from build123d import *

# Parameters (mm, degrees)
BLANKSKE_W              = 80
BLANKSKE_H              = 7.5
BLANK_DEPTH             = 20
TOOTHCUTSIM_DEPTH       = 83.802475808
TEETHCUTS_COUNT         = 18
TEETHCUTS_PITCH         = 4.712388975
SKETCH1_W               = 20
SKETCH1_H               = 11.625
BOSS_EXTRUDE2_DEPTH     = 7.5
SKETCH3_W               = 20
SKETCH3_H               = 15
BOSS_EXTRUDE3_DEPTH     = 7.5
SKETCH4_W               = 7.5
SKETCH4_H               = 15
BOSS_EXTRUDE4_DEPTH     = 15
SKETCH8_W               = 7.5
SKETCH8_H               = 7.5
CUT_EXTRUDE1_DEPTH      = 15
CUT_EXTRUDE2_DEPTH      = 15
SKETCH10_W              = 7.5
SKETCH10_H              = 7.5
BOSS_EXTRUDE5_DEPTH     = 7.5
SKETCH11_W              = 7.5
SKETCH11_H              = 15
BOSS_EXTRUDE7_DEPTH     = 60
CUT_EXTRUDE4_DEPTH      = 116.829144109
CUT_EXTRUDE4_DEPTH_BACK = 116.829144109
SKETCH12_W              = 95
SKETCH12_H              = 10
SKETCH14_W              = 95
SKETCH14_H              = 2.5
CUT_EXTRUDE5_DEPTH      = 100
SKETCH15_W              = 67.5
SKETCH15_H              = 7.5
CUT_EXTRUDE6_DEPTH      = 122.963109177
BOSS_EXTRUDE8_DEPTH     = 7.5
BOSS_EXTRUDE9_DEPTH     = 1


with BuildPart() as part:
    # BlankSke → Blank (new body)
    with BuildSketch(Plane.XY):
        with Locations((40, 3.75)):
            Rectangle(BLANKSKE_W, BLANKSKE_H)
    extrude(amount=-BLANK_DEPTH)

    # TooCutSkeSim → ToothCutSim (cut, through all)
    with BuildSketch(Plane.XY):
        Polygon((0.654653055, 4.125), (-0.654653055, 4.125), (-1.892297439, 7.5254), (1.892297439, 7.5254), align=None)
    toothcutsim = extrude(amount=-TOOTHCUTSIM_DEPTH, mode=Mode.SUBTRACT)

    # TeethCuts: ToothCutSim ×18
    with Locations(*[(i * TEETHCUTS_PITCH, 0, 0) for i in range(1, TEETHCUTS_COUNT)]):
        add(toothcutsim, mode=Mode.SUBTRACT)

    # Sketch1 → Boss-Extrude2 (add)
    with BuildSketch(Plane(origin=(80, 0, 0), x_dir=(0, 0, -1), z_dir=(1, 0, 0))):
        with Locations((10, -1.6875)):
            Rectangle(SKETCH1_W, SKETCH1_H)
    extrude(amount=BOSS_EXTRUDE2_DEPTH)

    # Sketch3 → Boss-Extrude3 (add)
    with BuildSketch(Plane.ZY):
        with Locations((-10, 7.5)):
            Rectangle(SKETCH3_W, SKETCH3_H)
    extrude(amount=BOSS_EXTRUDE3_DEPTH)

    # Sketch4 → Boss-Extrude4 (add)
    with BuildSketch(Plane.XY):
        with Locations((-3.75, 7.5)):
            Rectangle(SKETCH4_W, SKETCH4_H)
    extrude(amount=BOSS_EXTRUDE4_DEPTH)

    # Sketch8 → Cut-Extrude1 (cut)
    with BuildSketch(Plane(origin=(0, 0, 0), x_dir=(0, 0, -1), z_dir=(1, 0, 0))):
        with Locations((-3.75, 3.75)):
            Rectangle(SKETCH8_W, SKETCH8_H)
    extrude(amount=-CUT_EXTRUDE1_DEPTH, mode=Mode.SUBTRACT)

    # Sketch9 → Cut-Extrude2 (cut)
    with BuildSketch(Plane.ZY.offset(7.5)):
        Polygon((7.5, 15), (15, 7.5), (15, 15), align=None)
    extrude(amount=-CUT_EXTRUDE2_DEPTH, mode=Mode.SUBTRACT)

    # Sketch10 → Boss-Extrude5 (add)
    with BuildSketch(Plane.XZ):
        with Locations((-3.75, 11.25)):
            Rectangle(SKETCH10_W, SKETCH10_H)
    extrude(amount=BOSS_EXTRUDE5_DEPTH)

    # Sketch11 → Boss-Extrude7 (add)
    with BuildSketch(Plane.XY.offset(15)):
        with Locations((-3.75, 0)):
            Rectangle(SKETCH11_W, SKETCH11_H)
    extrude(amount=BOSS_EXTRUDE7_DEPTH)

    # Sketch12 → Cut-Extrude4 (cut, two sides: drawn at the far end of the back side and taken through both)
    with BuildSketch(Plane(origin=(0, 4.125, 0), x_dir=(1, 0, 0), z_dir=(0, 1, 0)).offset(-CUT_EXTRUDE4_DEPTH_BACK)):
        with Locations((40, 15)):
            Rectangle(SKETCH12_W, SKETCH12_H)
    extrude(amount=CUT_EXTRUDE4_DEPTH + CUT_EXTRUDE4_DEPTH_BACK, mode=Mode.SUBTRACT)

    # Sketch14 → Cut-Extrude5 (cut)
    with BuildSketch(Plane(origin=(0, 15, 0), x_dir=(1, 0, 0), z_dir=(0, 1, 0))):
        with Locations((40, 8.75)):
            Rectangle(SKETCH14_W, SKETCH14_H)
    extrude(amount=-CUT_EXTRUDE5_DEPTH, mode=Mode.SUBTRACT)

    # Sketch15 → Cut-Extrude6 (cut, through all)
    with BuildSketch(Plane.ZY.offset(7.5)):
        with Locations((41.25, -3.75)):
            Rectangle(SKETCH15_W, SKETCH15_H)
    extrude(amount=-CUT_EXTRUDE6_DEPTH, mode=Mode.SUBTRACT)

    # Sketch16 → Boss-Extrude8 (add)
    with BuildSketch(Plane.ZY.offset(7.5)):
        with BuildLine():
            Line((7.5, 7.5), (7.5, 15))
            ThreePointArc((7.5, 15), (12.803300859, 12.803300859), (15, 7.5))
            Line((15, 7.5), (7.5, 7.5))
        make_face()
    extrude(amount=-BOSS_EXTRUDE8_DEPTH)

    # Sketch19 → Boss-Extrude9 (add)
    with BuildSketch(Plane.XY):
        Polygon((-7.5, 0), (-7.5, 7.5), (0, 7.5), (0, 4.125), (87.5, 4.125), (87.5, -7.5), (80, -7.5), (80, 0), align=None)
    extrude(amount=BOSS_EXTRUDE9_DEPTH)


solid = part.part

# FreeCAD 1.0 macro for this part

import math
import FreeCAD as App
import Part
import Sketcher
from FreeCAD import Vector
Q = App.Units.Quantity

doc = App.newDocument("Part")
body = doc.addObject("PartDesign::Body", "Body")

# Sketch on XY plane
sketch1 = body.newObject("Sketcher::SketchObject", "Sketch")
sketch1.AttachmentSupport = (doc.getObject("XY_Plane"), [""])
sketch1.MapMode = "FlatFace"
sketch1.addGeometry(Part.LineSegment(Vector(0, 7.5, 0), Vector(0, 0, 0)), False)
sketch1.addGeometry(Part.LineSegment(Vector(0, 0, 0), Vector(80, 0, 0)), False)
sketch1.addGeometry(Part.LineSegment(Vector(80, 0, 0), Vector(80, 7.5, 0)), False)
sketch1.addGeometry(Part.LineSegment(Vector(80, 7.5, 0), Vector(0, 7.5, 0)), False)
sketch1.addConstraint(Sketcher.Constraint("Coincident", 0, 2, 1, 1))
sketch1.addConstraint(Sketcher.Constraint("Coincident", 1, 2, 2, 1))
sketch1.addConstraint(Sketcher.Constraint("Coincident", 2, 2, 3, 1))
sketch1.addConstraint(Sketcher.Constraint("Coincident", 3, 2, 0, 1))
sketch1.addConstraint(Sketcher.Constraint("Vertical", 0))
sketch1.addConstraint(Sketcher.Constraint("Horizontal", 1))
sketch1.addConstraint(Sketcher.Constraint("Vertical", 2))
sketch1.addConstraint(Sketcher.Constraint("Horizontal", 3))
sketch1.addConstraint(Sketcher.Constraint("Coincident", 0, 2, -1, 1))
sketch1.addConstraint(Sketcher.Constraint("DistanceX", 1, 1, 1, 2, 80.0))
sketch1.addConstraint(Sketcher.Constraint("DistanceY", 0, 2, 0, 1, 7.5))
pad1 = body.newObject("PartDesign::Pad", "Pad")
pad1.Profile = sketch1
pad1.Length = 20
pad1.Reversed = True

# Sketch on XY plane
sketch2 = body.newObject("Sketcher::SketchObject", "Sketch001")
sketch2.AttachmentSupport = (doc.getObject("XY_Plane"), [""])
sketch2.MapMode = "FlatFace"
sketch2.addGeometry(Part.LineSegment(Vector(-0.654653, 4.125, 0), Vector(0.654653, 4.125, 0)), False)
sketch2.addGeometry(Part.LineSegment(Vector(0.654653, 4.125, 0), Vector(1.892297, 7.5254, 0)), False)
sketch2.addGeometry(Part.LineSegment(Vector(1.892297, 7.5254, 0), Vector(-1.892297, 7.5254, 0)), False)
sketch2.addGeometry(Part.LineSegment(Vector(-1.892297, 7.5254, 0), Vector(-0.654653, 4.125, 0)), False)
sketch2.addConstraint(Sketcher.Constraint("Coincident", 0, 2, 1, 1))
sketch2.addConstraint(Sketcher.Constraint("Coincident", 1, 2, 2, 1))
sketch2.addConstraint(Sketcher.Constraint("Coincident", 2, 2, 3, 1))
sketch2.addConstraint(Sketcher.Constraint("Coincident", 3, 2, 0, 1))
sketch2.addConstraint(Sketcher.Constraint("Horizontal", 0))
sketch2.addConstraint(Sketcher.Constraint("Horizontal", 2))
sketch2.addConstraint(Sketcher.Constraint("Equal", 1, 3))
sketch2.addConstraint(Sketcher.Constraint("Angle", 1, Q("70 deg")))
sketch2.addConstraint(Sketcher.Constraint("DistanceY", -1, 1, 0, 2, 4.125))
sketch2.addConstraint(Sketcher.Constraint("DistanceY", -1, 1, 1, 2, 7.5254))
sketch2.addConstraint(Sketcher.Constraint("DistanceX", 0, 1, 0, 2, 1.309306))
sketch2.addConstraint(Sketcher.Constraint("DistanceX", -1, 1, 0, 2, 0.654653))
pocket1 = body.newObject("PartDesign::Pocket", "Pocket")
pocket1.Profile = sketch2
pocket1.Type = "ThroughAll"
doc.recompute()

linearpattern = body.newObject("PartDesign::LinearPattern", "LinearPattern")
linearpattern.Originals = [pocket1]
linearpattern.Direction = (doc.getObject("X_Axis"), [""])
linearpattern.Mode = "offset"
linearpattern.Offset = 4.712389
linearpattern.Occurrences = 18
body.Tip = linearpattern

# Sketch on YZ plane
sketch3 = body.newObject("Sketcher::SketchObject", "Sketch002")
sketch3.AttachmentSupport = (doc.getObject("YZ_Plane"), [""])
sketch3.MapMode = "FlatFace"
sketch3.AttachmentOffset = App.Placement(Vector(0, 0, 80), App.Rotation())
sketch3.addGeometry(Part.LineSegment(Vector(4.125, 0, 0), Vector(-7.5, 0, 0)), False)
sketch3.addGeometry(Part.LineSegment(Vector(-7.5, 0, 0), Vector(-7.5, -20, 0)), False)
sketch3.addGeometry(Part.LineSegment(Vector(-7.5, -20, 0), Vector(4.125, -20, 0)), False)
sketch3.addGeometry(Part.LineSegment(Vector(4.125, -20, 0), Vector(4.125, 0, 0)), False)
sketch3.addConstraint(Sketcher.Constraint("Coincident", 0, 2, 1, 1))
sketch3.addConstraint(Sketcher.Constraint("Coincident", 1, 2, 2, 1))
sketch3.addConstraint(Sketcher.Constraint("Coincident", 2, 2, 3, 1))
sketch3.addConstraint(Sketcher.Constraint("Coincident", 3, 2, 0, 1))
sketch3.addConstraint(Sketcher.Constraint("Horizontal", 0))
sketch3.addConstraint(Sketcher.Constraint("Vertical", 1))
sketch3.addConstraint(Sketcher.Constraint("Horizontal", 2))
sketch3.addConstraint(Sketcher.Constraint("Vertical", 3))
sketch3.addConstraint(Sketcher.Constraint("PointOnObject", 0, 2, -1))
sketch3.addConstraint(Sketcher.Constraint("DistanceY", 1, 2, 1, 1, 20.0))
sketch3.addConstraint(Sketcher.Constraint("DistanceX", 0, 2, -1, 1, 7.5))
sketch3.addConstraint(Sketcher.Constraint("DistanceX", 0, 2, 0, 1, 11.625))
pad2 = body.newObject("PartDesign::Pad", "Pad001")
pad2.Profile = sketch3
pad2.Length = 7.5

# Sketch on YZ plane
sketch4 = body.newObject("Sketcher::SketchObject", "Sketch003")
sketch4.AttachmentSupport = (doc.getObject("YZ_Plane"), [""])
sketch4.MapMode = "FlatFace"
sketch4.addGeometry(Part.LineSegment(Vector(15, -20, 0), Vector(0, -20, 0)), False)
sketch4.addGeometry(Part.LineSegment(Vector(0, -20, 0), Vector(0, 0, 0)), False)
sketch4.addGeometry(Part.LineSegment(Vector(0, 0, 0), Vector(15, 0, 0)), False)
sketch4.addGeometry(Part.LineSegment(Vector(15, 0, 0), Vector(15, -20, 0)), False)
sketch4.addConstraint(Sketcher.Constraint("Coincident", 0, 2, 1, 1))
sketch4.addConstraint(Sketcher.Constraint("Coincident", 1, 2, 2, 1))
sketch4.addConstraint(Sketcher.Constraint("Coincident", 2, 2, 3, 1))
sketch4.addConstraint(Sketcher.Constraint("Coincident", 3, 2, 0, 1))
sketch4.addConstraint(Sketcher.Constraint("Horizontal", 0))
sketch4.addConstraint(Sketcher.Constraint("Vertical", 1))
sketch4.addConstraint(Sketcher.Constraint("Horizontal", 2))
sketch4.addConstraint(Sketcher.Constraint("Vertical", 3))
sketch4.addConstraint(Sketcher.Constraint("Coincident", 1, 2, -1, 1))
sketch4.addConstraint(Sketcher.Constraint("DistanceX", 0, 2, 0, 1, 15.0))
sketch4.addConstraint(Sketcher.Constraint("DistanceY", 1, 1, 1, 2, 20.0))
pad3 = body.newObject("PartDesign::Pad", "Pad002")
pad3.Profile = sketch4
pad3.Length = 7.5
pad3.Reversed = True

# Sketch on XY plane
sketch5 = body.newObject("Sketcher::SketchObject", "Sketch004")
sketch5.AttachmentSupport = (doc.getObject("XY_Plane"), [""])
sketch5.MapMode = "FlatFace"
sketch5.addGeometry(Part.LineSegment(Vector(-7.5, 15, 0), Vector(-7.5, 0, 0)), False)
sketch5.addGeometry(Part.LineSegment(Vector(-7.5, 0, 0), Vector(0, 0, 0)), False)
sketch5.addGeometry(Part.LineSegment(Vector(0, 0, 0), Vector(0, 15, 0)), False)
sketch5.addGeometry(Part.LineSegment(Vector(0, 15, 0), Vector(-7.5, 15, 0)), False)
sketch5.addConstraint(Sketcher.Constraint("Coincident", 0, 2, 1, 1))
sketch5.addConstraint(Sketcher.Constraint("Coincident", 1, 2, 2, 1))
sketch5.addConstraint(Sketcher.Constraint("Coincident", 2, 2, 3, 1))
sketch5.addConstraint(Sketcher.Constraint("Coincident", 3, 2, 0, 1))
sketch5.addConstraint(Sketcher.Constraint("Vertical", 0))
sketch5.addConstraint(Sketcher.Constraint("Horizontal", 1))
sketch5.addConstraint(Sketcher.Constraint("Vertical", 2))
sketch5.addConstraint(Sketcher.Constraint("Horizontal", 3))
sketch5.addConstraint(Sketcher.Constraint("Coincident", 1, 2, -1, 1))
sketch5.addConstraint(Sketcher.Constraint("DistanceY", 0, 2, 0, 1, 15.0))
sketch5.addConstraint(Sketcher.Constraint("DistanceX", 1, 1, 1, 2, 7.5))
pad4 = body.newObject("PartDesign::Pad", "Pad003")
pad4.Profile = sketch5
pad4.Length = 15

# Sketch on YZ plane
sketch6 = body.newObject("Sketcher::SketchObject", "Sketch005")
sketch6.AttachmentSupport = (doc.getObject("YZ_Plane"), [""])
sketch6.MapMode = "FlatFace"
sketch6.addGeometry(Part.LineSegment(Vector(7.5, 7.5, 0), Vector(0, 7.5, 0)), False)
sketch6.addGeometry(Part.LineSegment(Vector(0, 7.5, 0), Vector(0, 0, 0)), False)
sketch6.addGeometry(Part.LineSegment(Vector(0, 0, 0), Vector(7.5, 0, 0)), False)
sketch6.addGeometry(Part.LineSegment(Vector(7.5, 0, 0), Vector(7.5, 7.5, 0)), False)
sketch6.addConstraint(Sketcher.Constraint("Coincident", 0, 2, 1, 1))
sketch6.addConstraint(Sketcher.Constraint("Coincident", 1, 2, 2, 1))
sketch6.addConstraint(Sketcher.Constraint("Coincident", 2, 2, 3, 1))
sketch6.addConstraint(Sketcher.Constraint("Coincident", 3, 2, 0, 1))
sketch6.addConstraint(Sketcher.Constraint("Horizontal", 0))
sketch6.addConstraint(Sketcher.Constraint("Vertical", 1))
sketch6.addConstraint(Sketcher.Constraint("Horizontal", 2))
sketch6.addConstraint(Sketcher.Constraint("Vertical", 3))
sketch6.addConstraint(Sketcher.Constraint("Coincident", 1, 2, -1, 1))
sketch6.addConstraint(Sketcher.Constraint("Equal", 2, 1))
sketch6.addConstraint(Sketcher.Constraint("DistanceX", 0, 2, 0, 1, 7.5))
pocket2 = body.newObject("PartDesign::Pocket", "Pocket001")
pocket2.Profile = sketch6
pocket2.Length = 15

# Sketch on YZ plane
sketch7 = body.newObject("Sketcher::SketchObject", "Sketch006")
sketch7.AttachmentSupport = (doc.getObject("YZ_Plane"), [""])
sketch7.MapMode = "FlatFace"
sketch7.AttachmentOffset = App.Placement(Vector(0, 0, -7.5), App.Rotation())
sketch7.addGeometry(Part.LineSegment(Vector(15, 7.5, 0), Vector(7.5, 15, 0)), False)
sketch7.addGeometry(Part.LineSegment(Vector(7.5, 15, 0), Vector(15, 15, 0)), False)
sketch7.addGeometry(Part.LineSegment(Vector(15, 15, 0), Vector(15, 7.5, 0)), False)
sketch7.addConstraint(Sketcher.Constraint("Coincident", 0, 2, 1, 1))
sketch7.addConstraint(Sketcher.Constraint("Coincident", 1, 2, 2, 1))
sketch7.addConstraint(Sketcher.Constraint("Coincident", 2, 2, 0, 1))
sketch7.addConstraint(Sketcher.Constraint("Horizontal", 1))
sketch7.addConstraint(Sketcher.Constraint("Vertical", 2))
sketch7.addConstraint(Sketcher.Constraint("Equal", 1, 2))
sketch7.addConstraint(Sketcher.Constraint("DistanceX", 1, 1, 1, 2, 7.5))
sketch7.addConstraint(Sketcher.Constraint("DistanceY", -1, 1, 0, 2, 15.0))
sketch7.addConstraint(Sketcher.Constraint("DistanceX", -1, 1, 1, 2, 15.0))
pocket3 = body.newObject("PartDesign::Pocket", "Pocket002")
pocket3.Profile = sketch7
pocket3.Length = 15
pocket3.Reversed = True

# Sketch on XZ plane
sketch8 = body.newObject("Sketcher::SketchObject", "Sketch007")
sketch8.AttachmentSupport = (doc.getObject("XZ_Plane"), [""])
sketch8.MapMode = "FlatFace"
sketch8.addGeometry(Part.LineSegment(Vector(-7.5, 15, 0), Vector(-7.5, 7.5, 0)), False)
sketch8.addGeometry(Part.LineSegment(Vector(-7.5, 7.5, 0), Vector(0, 7.5, 0)), False)
sketch8.addGeometry(Part.LineSegment(Vector(0, 7.5, 0), Vector(0, 15, 0)), False)
sketch8.addGeometry(Part.LineSegment(Vector(0, 15, 0), Vector(-7.5, 15, 0)), False)
sketch8.addConstraint(Sketcher.Constraint("Coincident", 0, 2, 1, 1))
sketch8.addConstraint(Sketcher.Constraint("Coincident", 1, 2, 2, 1))
sketch8.addConstraint(Sketcher.Constraint("Coincident", 2, 2, 3, 1))
sketch8.addConstraint(Sketcher.Constraint("Coincident", 3, 2, 0, 1))
sketch8.addConstraint(Sketcher.Constraint("Vertical", 0))
sketch8.addConstraint(Sketcher.Constraint("Horizontal", 1))
sketch8.addConstraint(Sketcher.Constraint("Vertical", 2))
sketch8.addConstraint(Sketcher.Constraint("Horizontal", 3))
sketch8.addConstraint(Sketcher.Constraint("PointOnObject", 1, 2, -2))
sketch8.addConstraint(Sketcher.Constraint("Equal", 3, 0))
sketch8.addConstraint(Sketcher.Constraint("DistanceX", 1, 1, 1, 2, 7.5))
sketch8.addConstraint(Sketcher.Constraint("DistanceY", -1, 1, 2, 2, 15.0))
pad5 = body.newObject("PartDesign::Pad", "Pad004")
pad5.Profile = sketch8
pad5.Length = 7.5

# Sketch on XY plane
sketch9 = body.newObject("Sketcher::SketchObject", "Sketch008")
sketch9.AttachmentSupport = (doc.getObject("XY_Plane"), [""])
sketch9.MapMode = "FlatFace"
sketch9.AttachmentOffset = App.Placement(Vector(0, 0, 15), App.Rotation())
sketch9.addGeometry(Part.LineSegment(Vector(-7.5, 7.5, 0), Vector(-7.5, -7.5, 0)), False)
sketch9.addGeometry(Part.LineSegment(Vector(-7.5, -7.5, 0), Vector(0, -7.5, 0)), False)
sketch9.addGeometry(Part.LineSegment(Vector(0, -7.5, 0), Vector(0, 7.5, 0)), False)
sketch9.addGeometry(Part.LineSegment(Vector(0, 7.5, 0), Vector(-7.5, 7.5, 0)), False)
sketch9.addConstraint(Sketcher.Constraint("Coincident", 0, 2, 1, 1))
sketch9.addConstraint(Sketcher.Constraint("Coincident", 1, 2, 2, 1))
sketch9.addConstraint(Sketcher.Constraint("Coincident", 2, 2, 3, 1))
sketch9.addConstraint(Sketcher.Constraint("Coincident", 3, 2, 0, 1))
sketch9.addConstraint(Sketcher.Constraint("Vertical", 0))
sketch9.addConstraint(Sketcher.Constraint("Horizontal", 1))
sketch9.addConstraint(Sketcher.Constraint("Vertical", 2))
sketch9.addConstraint(Sketcher.Constraint("Horizontal", 3))
sketch9.addConstraint(Sketcher.Constraint("Symmetric", 1, 2, 2, 2, -1, 1))
sketch9.addConstraint(Sketcher.Constraint("DistanceY", 0, 2, 0, 1, 15.0))
sketch9.addConstraint(Sketcher.Constraint("DistanceX", 1, 1, 1, 2, 7.5))
pad6 = body.newObject("PartDesign::Pad", "Pad005")
pad6.Profile = sketch9
pad6.Length = 60

# Sketch on XZ plane
sketch10 = body.newObject("Sketcher::SketchObject", "Sketch009")
sketch10.AttachmentSupport = (doc.getObject("XZ_Plane"), [""])
sketch10.MapMode = "FlatFace"
sketch10.AttachmentOffset = App.Placement(Vector(0, 0, -4.125), App.Rotation())
sketch10.addGeometry(Part.LineSegment(Vector(-7.5, -20, 0), Vector(-7.5, -10, 0)), False)
sketch10.addGeometry(Part.LineSegment(Vector(-7.5, -10, 0), Vector(87.5, -10, 0)), False)
sketch10.addGeometry(Part.LineSegment(Vector(87.5, -10, 0), Vector(87.5, -20, 0)), False)
sketch10.addGeometry(Part.LineSegment(Vector(87.5, -20, 0), Vector(-7.5, -20, 0)), False)
sketch10.addConstraint(Sketcher.Constraint("Coincident", 0, 2, 1, 1))
sketch10.addConstraint(Sketcher.Constraint("Coincident", 1, 2, 2, 1))
sketch10.addConstraint(Sketcher.Constraint("Coincident", 2, 2, 3, 1))
sketch10.addConstraint(Sketcher.Constraint("Coincident", 3, 2, 0, 1))
sketch10.addConstraint(Sketcher.Constraint("Vertical", 0))
sketch10.addConstraint(Sketcher.Constraint("Horizontal", 1))
sketch10.addConstraint(Sketcher.Constraint("Vertical", 2))
sketch10.addConstraint(Sketcher.Constraint("Horizontal", 3))
sketch10.addConstraint(Sketcher.Constraint("DistanceX", 1, 1, 1, 2, 95.0))
sketch10.addConstraint(Sketcher.Constraint("DistanceY", 0, 1, 0, 2, 10.0))
sketch10.addConstraint(Sketcher.Constraint("DistanceY", 0, 2, -1, 1, 10.0))
sketch10.addConstraint(Sketcher.Constraint("DistanceX", 0, 2, -1, 1, 7.5))
pocket4 = body.newObject("PartDesign::Pocket", "Pocket003")
pocket4.Profile = sketch10
pocket4.Type = "ThroughAll"
pocket4.Midplane = True

# Sketch on XZ plane
sketch11 = body.newObject("Sketcher::SketchObject", "Sketch010")
sketch11.AttachmentSupport = (doc.getObject("XZ_Plane"), [""])
sketch11.MapMode = "FlatFace"
sketch11.AttachmentOffset = App.Placement(Vector(0, 0, -15), App.Rotation())
sketch11.addGeometry(Part.LineSegment(Vector(-7.5, -10, 0), Vector(-7.5, -7.5, 0)), False)
sketch11.addGeometry(Part.LineSegment(Vector(-7.5, -7.5, 0), Vector(87.5, -7.5, 0)), False)
sketch11.addGeometry(Part.LineSegment(Vector(87.5, -7.5, 0), Vector(87.5, -10, 0)), False)
sketch11.addGeometry(Part.LineSegment(Vector(87.5, -10, 0), Vector(-7.5, -10, 0)), False)
sketch11.addConstraint(Sketcher.Constraint("Coincident", 0, 2, 1, 1))
sketch11.addConstraint(Sketcher.Constraint("Coincident", 1, 2, 2, 1))
sketch11.addConstraint(Sketcher.Constraint("Coincident", 2, 2, 3, 1))
sketch11.addConstraint(Sketcher.Constraint("Coincident", 3, 2, 0, 1))
sketch11.addConstraint(Sketcher.Constraint("Vertical", 0))
sketch11.addConstraint(Sketcher.Constraint("Horizontal", 1))
sketch11.addConstraint(Sketcher.Constraint("Vertical", 2))
sketch11.addConstraint(Sketcher.Constraint("Horizontal", 3))
sketch11.addConstraint(Sketcher.Constraint("DistanceX", 1, 1, 1, 2, 95.0))
sketch11.addConstraint(Sketcher.Constraint("DistanceY", 0, 1, 0, 2, 2.5))
sketch11.addConstraint(Sketcher.Constraint("DistanceY", 2, 2, -1, 1, 10.0))
sketch11.addConstraint(Sketcher.Constraint("DistanceX", 0, 2, -1, 1, 7.5))
pocket5 = body.newObject("PartDesign::Pocket", "Pocket004")
pocket5.Profile = sketch11
pocket5.Length = 100
pocket5.Reversed = True

# Sketch on YZ plane
sketch12 = body.newObject("Sketcher::SketchObject", "Sketch011")
sketch12.AttachmentSupport = (doc.getObject("YZ_Plane"), [""])
sketch12.MapMode = "FlatFace"
sketch12.AttachmentOffset = App.Placement(Vector(0, 0, -7.5), App.Rotation())
sketch12.addGeometry(Part.LineSegment(Vector(0, 7.5, 0), Vector(-7.5, 7.5, 0)), False)
sketch12.addGeometry(Part.LineSegment(Vector(-7.5, 7.5, 0), Vector(-7.5, 75, 0)), False)
sketch12.addGeometry(Part.LineSegment(Vector(-7.5, 75, 0), Vector(0, 75, 0)), False)
sketch12.addGeometry(Part.LineSegment(Vector(0, 75, 0), Vector(0, 7.5, 0)), False)
sketch12.addConstraint(Sketcher.Constraint("Coincident", 0, 2, 1, 1))
sketch12.addConstraint(Sketcher.Constraint("Coincident", 1, 2, 2, 1))
sketch12.addConstraint(Sketcher.Constraint("Coincident", 2, 2, 3, 1))
sketch12.addConstraint(Sketcher.Constraint("Coincident", 3, 2, 0, 1))
sketch12.addConstraint(Sketcher.Constraint("Horizontal", 0))
sketch12.addConstraint(Sketcher.Constraint("Vertical", 1))
sketch12.addConstraint(Sketcher.Constraint("Horizontal", 2))
sketch12.addConstraint(Sketcher.Constraint("Vertical", 3))
sketch12.addConstraint(Sketcher.Constraint("PointOnObject", 2, 2, -2))
sketch12.addConstraint(Sketcher.Constraint("DistanceX", 0, 2, 0, 1, 7.5))
sketch12.addConstraint(Sketcher.Constraint("DistanceY", 1, 1, 1, 2, 67.5))
sketch12.addConstraint(Sketcher.Constraint("DistanceY", -1, 1, 1, 2, 75.0))
pocket6 = body.newObject("PartDesign::Pocket", "Pocket005")
pocket6.Profile = sketch12
pocket6.Type = "ThroughAll"
pocket6.Reversed = True

# Sketch on YZ plane
sketch13 = body.newObject("Sketcher::SketchObject", "Sketch012")
sketch13.AttachmentSupport = (doc.getObject("YZ_Plane"), [""])
sketch13.MapMode = "FlatFace"
sketch13.AttachmentOffset = App.Placement(Vector(0, 0, -7.5), App.Rotation())
sketch13.addGeometry(Part.LineSegment(Vector(15, 7.5, 0), Vector(7.5, 7.5, 0)), False)
sketch13.addGeometry(Part.LineSegment(Vector(7.5, 7.5, 0), Vector(7.5, 15, 0)), False)
sketch13.addGeometry(Part.ArcOfCircle(Part.Circle(Vector(7.5, 7.5, 0), Vector(0, 0, 1), 7.5), math.radians(0), math.radians(90)), False)
sketch13.addConstraint(Sketcher.Constraint("Coincident", 0, 2, 1, 1))
sketch13.addConstraint(Sketcher.Constraint("Coincident", 1, 2, 2, 2))
sketch13.addConstraint(Sketcher.Constraint("Coincident", 2, 1, 0, 1))
sketch13.addConstraint(Sketcher.Constraint("Horizontal", 0))
sketch13.addConstraint(Sketcher.Constraint("Vertical", 1))
sketch13.addConstraint(Sketcher.Constraint("Coincident", 0, 2, 2, 3))
sketch13.addConstraint(Sketcher.Constraint("Radius", 2, 7.5))
sketch13.addConstraint(Sketcher.Constraint("DistanceY", -1, 1, 1, 2, 15.0))
sketch13.addConstraint(Sketcher.Constraint("DistanceX", -1, 1, 2, 1, 15.0))
pad7 = body.newObject("PartDesign::Pad", "Pad006")
pad7.Profile = sketch13
pad7.Length = 7.5

# Sketch on XY plane
sketch14 = body.newObject("Sketcher::SketchObject", "Sketch013")
sketch14.AttachmentSupport = (doc.getObject("XY_Plane"), [""])
sketch14.MapMode = "FlatFace"
sketch14.addGeometry(Part.LineSegment(Vector(-7.5, 7.5, 0), Vector(-7.5, 0, 0)), False)
sketch14.addGeometry(Part.LineSegment(Vector(-7.5, 0, 0), Vector(80, 0, 0)), False)
sketch14.addGeometry(Part.LineSegment(Vector(80, 0, 0), Vector(80, -7.5, 0)), False)
sketch14.addGeometry(Part.LineSegment(Vector(80, -7.5, 0), Vector(87.5, -7.5, 0)), False)
sketch14.addGeometry(Part.LineSegment(Vector(87.5, -7.5, 0), Vector(87.5, 4.125, 0)), False)
sketch14.addGeometry(Part.LineSegment(Vector(87.5, 4.125, 0), Vector(0, 4.125, 0)), False)
sketch14.addGeometry(Part.LineSegment(Vector(0, 4.125, 0), Vector(0, 7.5, 0)), False)
sketch14.addGeometry(Part.LineSegment(Vector(0, 7.5, 0), Vector(-7.5, 7.5, 0)), False)
sketch14.addConstraint(Sketcher.Constraint("Coincident", 0, 2, 1, 1))
sketch14.addConstraint(Sketcher.Constraint("Coincident", 1, 2, 2, 1))
sketch14.addConstraint(Sketcher.Constraint("Coincident", 2, 2, 3, 1))
sketch14.addConstraint(Sketcher.Constraint("Coincident", 3, 2, 4, 1))
sketch14.addConstraint(Sketcher.Constraint("Coincident", 4, 2, 5, 1))
sketch14.addConstraint(Sketcher.Constraint("Coincident", 5, 2, 6, 1))
sketch14.addConstraint(Sketcher.Constraint("Coincident", 6, 2, 7, 1))
sketch14.addConstraint(Sketcher.Constraint("Coincident", 7, 2, 0, 1))
sketch14.addConstraint(Sketcher.Constraint("Vertical", 0))
sketch14.addConstraint(Sketcher.Constraint("Horizontal", 1))
sketch14.addConstraint(Sketcher.Constraint("Vertical", 2))
sketch14.addConstraint(Sketcher.Constraint("Horizontal", 3))
sketch14.addConstraint(Sketcher.Constraint("Vertical", 4))
sketch14.addConstraint(Sketcher.Constraint("Horizontal", 5))
sketch14.addConstraint(Sketcher.Constraint("Vertical", 6))
sketch14.addConstraint(Sketcher.Constraint("Horizontal", 7))
sketch14.addConstraint(Sketcher.Constraint("PointOnObject", 0, 2, -1))
sketch14.addConstraint(Sketcher.Constraint("PointOnObject", 5, 2, -2))
sketch14.addConstraint(Sketcher.Constraint("Equal", 1, 5))
sketch14.addConstraint(Sketcher.Constraint("Equal", 7, 0))
sketch14.addConstraint(Sketcher.Constraint("Equal", 0, 2))
sketch14.addConstraint(Sketcher.Constraint("DistanceX", 1, 1, 1, 2, 87.5))
sketch14.addConstraint(Sketcher.Constraint("DistanceX", 3, 1, 3, 2, 7.5))
sketch14.addConstraint(Sketcher.Constraint("DistanceY", 4, 1, 4, 2, 11.625))
pad8 = body.newObject("PartDesign::Pad", "Pad007")
pad8.Profile = sketch14
pad8.Length = 1

doc.recompute()
